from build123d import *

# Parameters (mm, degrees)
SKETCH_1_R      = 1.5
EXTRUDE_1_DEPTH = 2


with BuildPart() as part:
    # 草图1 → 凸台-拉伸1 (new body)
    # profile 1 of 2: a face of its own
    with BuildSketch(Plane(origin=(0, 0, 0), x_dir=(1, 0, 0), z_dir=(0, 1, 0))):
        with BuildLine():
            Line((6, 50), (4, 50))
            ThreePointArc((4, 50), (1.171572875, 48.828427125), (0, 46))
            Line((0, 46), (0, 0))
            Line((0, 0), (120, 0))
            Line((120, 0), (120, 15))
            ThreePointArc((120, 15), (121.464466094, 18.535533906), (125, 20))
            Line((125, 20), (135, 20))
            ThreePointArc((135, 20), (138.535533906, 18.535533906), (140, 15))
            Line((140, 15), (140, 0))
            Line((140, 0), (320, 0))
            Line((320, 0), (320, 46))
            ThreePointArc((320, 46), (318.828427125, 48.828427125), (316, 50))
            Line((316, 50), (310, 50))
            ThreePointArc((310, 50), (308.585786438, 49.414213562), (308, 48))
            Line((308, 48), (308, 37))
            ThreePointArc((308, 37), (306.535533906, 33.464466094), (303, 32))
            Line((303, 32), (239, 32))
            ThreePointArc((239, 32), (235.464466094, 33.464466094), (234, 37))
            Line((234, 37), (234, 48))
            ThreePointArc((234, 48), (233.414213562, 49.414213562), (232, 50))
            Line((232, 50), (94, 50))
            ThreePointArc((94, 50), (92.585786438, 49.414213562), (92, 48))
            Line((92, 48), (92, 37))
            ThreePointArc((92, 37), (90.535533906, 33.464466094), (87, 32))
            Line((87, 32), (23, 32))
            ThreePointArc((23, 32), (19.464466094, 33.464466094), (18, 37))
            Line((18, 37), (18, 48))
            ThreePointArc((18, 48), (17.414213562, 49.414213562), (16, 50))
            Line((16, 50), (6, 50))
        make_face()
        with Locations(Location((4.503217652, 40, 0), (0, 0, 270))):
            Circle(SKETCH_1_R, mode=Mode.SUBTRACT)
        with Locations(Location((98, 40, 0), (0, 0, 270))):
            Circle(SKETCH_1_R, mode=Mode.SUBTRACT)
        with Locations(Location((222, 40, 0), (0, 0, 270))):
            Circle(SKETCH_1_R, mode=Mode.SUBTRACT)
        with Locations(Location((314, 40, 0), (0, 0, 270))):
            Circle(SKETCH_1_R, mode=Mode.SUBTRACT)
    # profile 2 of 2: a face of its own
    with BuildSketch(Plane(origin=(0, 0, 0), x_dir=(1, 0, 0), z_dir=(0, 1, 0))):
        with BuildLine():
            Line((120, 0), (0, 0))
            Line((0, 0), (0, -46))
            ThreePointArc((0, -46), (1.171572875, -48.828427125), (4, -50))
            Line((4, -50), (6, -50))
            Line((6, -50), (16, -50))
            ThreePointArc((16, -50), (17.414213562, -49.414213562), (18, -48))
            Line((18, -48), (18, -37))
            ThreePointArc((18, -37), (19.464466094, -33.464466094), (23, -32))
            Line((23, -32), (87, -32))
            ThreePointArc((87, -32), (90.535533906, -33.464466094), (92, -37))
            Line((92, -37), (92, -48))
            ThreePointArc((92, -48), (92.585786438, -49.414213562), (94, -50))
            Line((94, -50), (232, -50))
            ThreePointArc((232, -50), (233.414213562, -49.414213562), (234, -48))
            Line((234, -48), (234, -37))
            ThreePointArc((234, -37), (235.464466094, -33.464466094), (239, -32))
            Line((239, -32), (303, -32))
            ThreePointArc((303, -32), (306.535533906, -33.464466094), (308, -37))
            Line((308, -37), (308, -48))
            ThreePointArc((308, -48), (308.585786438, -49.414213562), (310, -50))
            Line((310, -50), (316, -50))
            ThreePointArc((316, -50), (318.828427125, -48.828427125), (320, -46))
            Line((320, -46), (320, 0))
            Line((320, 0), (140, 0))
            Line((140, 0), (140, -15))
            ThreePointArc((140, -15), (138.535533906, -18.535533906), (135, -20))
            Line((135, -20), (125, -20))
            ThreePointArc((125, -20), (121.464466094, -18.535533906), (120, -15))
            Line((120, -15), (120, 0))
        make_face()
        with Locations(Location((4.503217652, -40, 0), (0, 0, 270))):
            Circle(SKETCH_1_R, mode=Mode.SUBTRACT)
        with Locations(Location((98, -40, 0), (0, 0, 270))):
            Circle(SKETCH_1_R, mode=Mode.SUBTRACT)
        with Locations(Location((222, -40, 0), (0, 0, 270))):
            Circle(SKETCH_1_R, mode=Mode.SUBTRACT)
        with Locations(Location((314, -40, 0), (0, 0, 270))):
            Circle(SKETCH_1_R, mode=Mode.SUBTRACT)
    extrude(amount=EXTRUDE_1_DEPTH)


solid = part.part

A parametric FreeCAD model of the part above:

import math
import FreeCAD as App
import Part
import Sketcher
Q = App.Units.Quantity

doc = App.newDocument("Part")
body = doc.addObject("PartDesign::Body", "Body")

sketch1 = body.newObject("Sketcher::SketchObject", "Sketch")
sketch1.AttachmentSupport = (doc.getObject("XZ_Plane"), [""])
sketch1.MapMode = "FlatFace"
sketch1.addGeometry([
    Part.ArcOfCircle(Part.Circle(App.Vector(4, -46, 0), App.Vector(0, 0, 1), 4), math.radians(180), math.radians(270)),
    Part.LineSegment(App.Vector(0, -46, 0), App.Vector(0, 46, 0)),
    Part.ArcOfCircle(Part.Circle(App.Vector(4, 46, 0), App.Vector(0, 0, 1), 4), math.radians(90), math.radians(180)),
    Part.LineSegment(App.Vector(4, 50, 0), App.Vector(16, 50, 0)),
    Part.ArcOfCircle(Part.Circle(App.Vector(16, 48, 0), App.Vector(0, 0, 1), 2), math.radians(0), math.radians(90)),
    Part.LineSegment(App.Vector(18, 48, 0), App.Vector(18, 37, 0)),
    Part.ArcOfCircle(Part.Circle(App.Vector(23, 37, 0), App.Vector(0, 0, 1), 5), math.radians(180), math.radians(270)),
    Part.LineSegment(App.Vector(23, 32, 0), App.Vector(87, 32, 0)),
    Part.ArcOfCircle(Part.Circle(App.Vector(87, 37, 0), App.Vector(0, 0, 1), 5), math.radians(-90), math.radians(0)),
    Part.LineSegment(App.Vector(92, 37, 0), App.Vector(92, 48, 0)),
    Part.ArcOfCircle(Part.Circle(App.Vector(94, 48, 0), App.Vector(0, 0, 1), 2), math.radians(90), math.radians(180)),
    Part.LineSegment(App.Vector(94, 50, 0), App.Vector(232, 50, 0)),
    Part.ArcOfCircle(Part.Circle(App.Vector(232, 48, 0), App.Vector(0, 0, 1), 2), math.radians(0), math.radians(90)),
    Part.LineSegment(App.Vector(234, 48, 0), App.Vector(234, 37, 0)),
    Part.ArcOfCircle(Part.Circle(App.Vector(239, 37, 0), App.Vector(0, 0, 1), 5), math.radians(180), math.radians(270)),
    Part.LineSegment(App.Vector(239, 32, 0), App.Vector(303, 32, 0)),
    Part.ArcOfCircle(Part.Circle(App.Vector(303, 37, 0), App.Vector(0, 0, 1), 5), math.radians(-90), math.radians(0)),
    Part.LineSegment(App.Vector(308, 37, 0), App.Vector(308, 48, 0)),
    Part.ArcOfCircle(Part.Circle(App.Vector(310, 48, 0), App.Vector(0, 0, 1), 2), math.radians(90), math.radians(180)),
    Part.LineSegment(App.Vector(310, 50, 0), App.Vector(316, 50, 0)),
    Part.ArcOfCircle(Part.Circle(App.Vector(316, 46, 0), App.Vector(0, 0, 1), 4), math.radians(0), math.radians(90)),
    Part.LineSegment(App.Vector(320, 46, 0), App.Vector(320, -46, 0)),
    Part.ArcOfCircle(Part.Circle(App.Vector(316, -46, 0), App.Vector(0, 0, 1), 4), math.radians(-90), math.radians(0)),
    Part.LineSegment(App.Vector(316, -50, 0), App.Vector(310, -50, 0)),
    Part.ArcOfCircle(Part.Circle(App.Vector(310, -48, 0), App.Vector(0, 0, 1), 2), math.radians(-180), math.radians(-90)),
    Part.LineSegment(App.Vector(308, -48, 0), App.Vector(308, -37, 0)),
    Part.ArcOfCircle(Part.Circle(App.Vector(303, -37, 0), App.Vector(0, 0, 1), 5), math.radians(0), math.radians(90)),
    Part.LineSegment(App.Vector(303, -32, 0), App.Vector(239, -32, 0)),
    Part.ArcOfCircle(Part.Circle(App.Vector(239, -37, 0), App.Vector(0, 0, 1), 5), math.radians(90), math.radians(180)),
    Part.LineSegment(App.Vector(234, -37, 0), App.Vector(234, -48, 0)),
    Part.ArcOfCircle(Part.Circle(App.Vector(232, -48, 0), App.Vector(0, 0, 1), 2), math.radians(-90), math.radians(0)),
    Part.LineSegment(App.Vector(232, -50, 0), App.Vector(94, -50, 0)),
    Part.ArcOfCircle(Part.Circle(App.Vector(94, -48, 0), App.Vector(0, 0, 1), 2), math.radians(-180), math.radians(-90)),
    Part.LineSegment(App.Vector(92, -48, 0), App.Vector(92, -37, 0)),
    Part.ArcOfCircle(Part.Circle(App.Vector(87, -37, 0), App.Vector(0, 0, 1), 5), math.radians(0), math.radians(90)),
    Part.LineSegment(App.Vector(87, -32, 0), App.Vector(23, -32, 0)),
    Part.ArcOfCircle(Part.Circle(App.Vector(23, -37, 0), App.Vector(0, 0, 1), 5), math.radians(90), math.radians(180)),
    Part.LineSegment(App.Vector(18, -37, 0), App.Vector(18, -48, 0)),
    Part.ArcOfCircle(Part.Circle(App.Vector(16, -48, 0), App.Vector(0, 0, 1), 2), math.radians(-90), math.radians(0)),
    Part.LineSegment(App.Vector(16, -50, 0), App.Vector(4, -50, 0)),
    Part.ArcOfCircle(Part.Circle(App.Vector(125, -15, 0), App.Vector(0, 0, 1), 5), math.radians(180), math.radians(270)),
    Part.LineSegment(App.Vector(125, -20, 0), App.Vector(135, -20, 0)),
    Part.ArcOfCircle(Part.Circle(App.Vector(135, -15, 0), App.Vector(0, 0, 1), 5), math.radians(-90), math.radians(0)),
    Part.LineSegment(App.Vector(140, -15, 0), App.Vector(140, 15, 0)),
    Part.ArcOfCircle(Part.Circle(App.Vector(135, 15, 0), App.Vector(0, 0, 1), 5), math.radians(0), math.radians(90)),
    Part.LineSegment(App.Vector(135, 20, 0), App.Vector(125, 20, 0)),
    Part.ArcOfCircle(Part.Circle(App.Vector(125, 15, 0), App.Vector(0, 0, 1), 5), math.radians(90), math.radians(180)),
    Part.LineSegment(App.Vector(120, 15, 0), App.Vector(120, -15, 0)),
    Part.Circle(App.Vector(4.503218, -40, 0), App.Vector(0, 0, 1), 1.5),
    Part.Circle(App.Vector(98, -40, 0), App.Vector(0, 0, 1), 1.5),
    Part.Circle(App.Vector(222, -40, 0), App.Vector(0, 0, 1), 1.5),
    Part.Circle(App.Vector(314, -40, 0), App.Vector(0, 0, 1), 1.5),
    Part.Circle(App.Vector(314, 40, 0), App.Vector(0, 0, 1), 1.5),
    Part.Circle(App.Vector(222, 40, 0), App.Vector(0, 0, 1), 1.5),
    Part.Circle(App.Vector(4.503218, 40, 0), App.Vector(0, 0, 1), 1.5),
    Part.Circle(App.Vector(98, 40, 0), App.Vector(0, 0, 1), 1.5),
], False)
sketch1.addConstraint([
    Sketcher.Constraint("Tangent", 0, 1, 1, 1),
    Sketcher.Constraint("Tangent", 1, 2, 2, 2),
    Sketcher.Constraint("Tangent", 2, 1, 3, 1),
    Sketcher.Constraint("Tangent", 3, 2, 4, 2),
    Sketcher.Constraint("Tangent", 4, 1, 5, 1),
    Sketcher.Constraint("Tangent", 5, 2, 6, 1),
    Sketcher.Constraint("Tangent", 6, 2, 7, 1),
    Sketcher.Constraint("Tangent", 7, 2, 8, 1),
    Sketcher.Constraint("Tangent", 8, 2, 9, 1),
    Sketcher.Constraint("Tangent", 9, 2, 10, 2),
    Sketcher.Constraint("Tangent", 10, 1, 11, 1),
    Sketcher.Constraint("Tangent", 11, 2, 12, 2),
    Sketcher.Constraint("Tangent", 12, 1, 13, 1),
    Sketcher.Constraint("Tangent", 13, 2, 14, 1),
    Sketcher.Constraint("Tangent", 14, 2, 15, 1),
    Sketcher.Constraint("Tangent", 15, 2, 16, 1),
    Sketcher.Constraint("Tangent", 16, 2, 17, 1),
    Sketcher.Constraint("Tangent", 17, 2, 18, 2),
    Sketcher.Constraint("Tangent", 18, 1, 19, 1),
    Sketcher.Constraint("Tangent", 19, 2, 20, 2),
    Sketcher.Constraint("Tangent", 20, 1, 21, 1),
    Sketcher.Constraint("Tangent", 21, 2, 22, 2),
    Sketcher.Constraint("Tangent", 22, 1, 23, 1),
    Sketcher.Constraint("Tangent", 23, 2, 24, 2),
    Sketcher.Constraint("Tangent", 24, 1, 25, 1),
    Sketcher.Constraint("Tangent", 25, 2, 26, 1),
    Sketcher.Constraint("Tangent", 26, 2, 27, 1),
    Sketcher.Constraint("Tangent", 27, 2, 28, 1),
    Sketcher.Constraint("Tangent", 28, 2, 29, 1),
    Sketcher.Constraint("Tangent", 29, 2, 30, 2),
    Sketcher.Constraint("Tangent", 30, 1, 31, 1),
    Sketcher.Constraint("Tangent", 31, 2, 32, 2),
    Sketcher.Constraint("Tangent", 32, 1, 33, 1),
    Sketcher.Constraint("Tangent", 33, 2, 34, 1),
    Sketcher.Constraint("Tangent", 34, 2, 35, 1),
    Sketcher.Constraint("Tangent", 35, 2, 36, 1),
    Sketcher.Constraint("Tangent", 36, 2, 37, 1),
    Sketcher.Constraint("Tangent", 37, 2, 38, 2),
    Sketcher.Constraint("Tangent", 38, 1, 39, 1),
    Sketcher.Constraint("Tangent", 39, 2, 0, 2),
    Sketcher.Constraint("Tangent", 40, 2, 41, 1),
    Sketcher.Constraint("Tangent", 41, 2, 42, 1),
    Sketcher.Constraint("Tangent", 42, 2, 43, 1),
    Sketcher.Constraint("Tangent", 43, 2, 44, 1),
    Sketcher.Constraint("Tangent", 44, 2, 45, 1),
    Sketcher.Constraint("Tangent", 45, 2, 46, 1),
    Sketcher.Constraint("Tangent", 46, 2, 47, 1),
    Sketcher.Constraint("Tangent", 47, 2, 40, 1),
    Sketcher.Constraint("Vertical", 1),
    Sketcher.Constraint("Horizontal", 3),
    Sketcher.Constraint("Vertical", 5),
    Sketcher.Constraint("Horizontal", 7),
    Sketcher.Constraint("Vertical", 9),
    Sketcher.Constraint("Horizontal", 11),
    Sketcher.Constraint("Vertical", 13),
    Sketcher.Constraint("Horizontal", 15),
    Sketcher.Constraint("Vertical", 17),
    Sketcher.Constraint("Horizontal", 19),
    Sketcher.Constraint("Vertical", 21),
    Sketcher.Constraint("Horizontal", 23),
    Sketcher.Constraint("Vertical", 25),
    Sketcher.Constraint("Horizontal", 27),
    Sketcher.Constraint("Vertical", 29),
    Sketcher.Constraint("Horizontal", 31),
    Sketcher.Constraint("Vertical", 33),
    Sketcher.Constraint("Horizontal", 35),
    Sketcher.Constraint("Vertical", 37),
    Sketcher.Constraint("Horizontal", 39),
    Sketcher.Constraint("Horizontal", 41),
    Sketcher.Constraint("Vertical", 43),
    Sketcher.Constraint("Horizontal", 45),
    Sketcher.Constraint("Vertical", 47),
    Sketcher.Constraint("Equal", 0, 2),
    Sketcher.Constraint("Equal", 6, 8),
    Sketcher.Constraint("Equal", 4, 10),
    Sketcher.Constraint("Equal", 10, 12),
    Sketcher.Constraint("Equal", 8, 14),
    Sketcher.Constraint("Equal", 14, 16),
    Sketcher.Constraint("Equal", 12, 18),
    Sketcher.Constraint("Equal", 2, 20),
    Sketcher.Constraint("Equal", 20, 22),
    Sketcher.Constraint("Equal", 18, 24),
    Sketcher.Constraint("Equal", 16, 26),
    Sketcher.Constraint("Equal", 26, 28),
    Sketcher.Constraint("Equal", 24, 30),
    Sketcher.Constraint("Equal", 30, 32),
    Sketcher.Constraint("Equal", 28, 34),
    Sketcher.Constraint("Equal", 34, 36),
    Sketcher.Constraint("Equal", 32, 38),
    Sketcher.Constraint("Equal", 36, 40),
    Sketcher.Constraint("Equal", 40, 42),
    Sketcher.Constraint("Equal", 42, 44),
    Sketcher.Constraint("Equal", 44, 46),
    Sketcher.Constraint("Equal", 48, 49),
    Sketcher.Constraint("Equal", 49, 50),
    Sketcher.Constraint("Equal", 50, 51),
    Sketcher.Constraint("Equal", 51, 52),
    Sketcher.Constraint("Equal", 52, 53),
    Sketcher.Constraint("Equal", 53, 54),
    Sketcher.Constraint("Equal", 54, 55),
    Sketcher.Constraint("Symmetric", 0, 1, 1, 2, -1, 1),
    Sketcher.Constraint("Symmetric", 18, 3, 24, 3, -1),
    Sketcher.Constraint("Symmetric", 14, 3, 28, 3, -1),
    Sketcher.Constraint("Symmetric", 10, 3, 32, 3, -1),
    Sketcher.Constraint("Symmetric", 6, 3, 36, 3, -1),
    Sketcher.Constraint("Symmetric", 51, 3, 52, 3, -1),
    Sketcher.Constraint("Symmetric", 50, 3, 53, 3, -1),
    Sketcher.Constraint("Symmetric", 48, 3, 54, 3, -1),
    Sketcher.Constraint("Symmetric", 49, 3, 55, 3, -1),
    Sketcher.Constraint("Horizontal", 4, 3, 10, 3),
    Sketcher.Constraint("Horizontal", 8, 3, 14, 3),
    Sketcher.Constraint("Horizontal", 12, 3, 18, 3),
    Sketcher.Constraint("Horizontal", 48, 3, 49, 3),
    Sketcher.Constraint("Horizontal", 49, 3, 50, 3),
    Sketcher.Constraint("Horizontal", 50, 3, 51, 3),
    Sketcher.Constraint("Equal", 7, 15),
    Sketcher.Constraint("Diameter", 48, Q("3 mm")),
    Sketcher.Constraint("Radius", 0, Q("4 mm")),
    Sketcher.Constraint("Radius", 4, Q("2 mm")),
    Sketcher.Constraint("Radius", 6, Q("5 mm")),
    Sketcher.Constraint("DistanceX", 3, 1, 3, 2, Q("12 mm")),
    Sketcher.Constraint("DistanceX", 7, 1, 7, 2, Q("64 mm")),
    Sketcher.Constraint("DistanceX", 11, 1, 11, 2, Q("138 mm")),
    Sketcher.Constraint("DistanceX", 19, 1, 19, 2, Q("6 mm")),
    Sketcher.Constraint("DistanceX", 41, 1, 41, 2, Q("10 mm")),
    Sketcher.Constraint("DistanceY", 1, 1, 1, 2, Q("92 mm")),
    Sketcher.Constraint("DistanceY", 5, 2, 5, 1, Q("11 mm")),
    Sketcher.Constraint("DistanceY", 43, 1, 43, 2, Q("30 mm")),
    Sketcher.Constraint("DistanceX", -1, 1, 40, 3, Q("125 mm")),
    Sketcher.Constraint("DistanceY", 40, 3, -1, 1, Q("15 mm")),
    Sketcher.Constraint("DistanceY", 48, 3, -1, 1, Q("40 mm")),
    Sketcher.Constraint("DistanceX", -1, 1, 49, 3, Q("98 mm")),
    Sketcher.Constraint("DistanceX", -1, 1, 50, 3, Q("222 mm")),
    Sketcher.Constraint("DistanceX", -1, 1, 51, 3, Q("314 mm")),
    Sketcher.Constraint("DistanceX", -1, 1, 48, 3, Q("4.503218 mm")),
])
pad1 = body.newObject("PartDesign::Pad", "Pad")
pad1.Profile = sketch1
pad1.Length = 2
pad1.Reversed = True

doc.recompute()
